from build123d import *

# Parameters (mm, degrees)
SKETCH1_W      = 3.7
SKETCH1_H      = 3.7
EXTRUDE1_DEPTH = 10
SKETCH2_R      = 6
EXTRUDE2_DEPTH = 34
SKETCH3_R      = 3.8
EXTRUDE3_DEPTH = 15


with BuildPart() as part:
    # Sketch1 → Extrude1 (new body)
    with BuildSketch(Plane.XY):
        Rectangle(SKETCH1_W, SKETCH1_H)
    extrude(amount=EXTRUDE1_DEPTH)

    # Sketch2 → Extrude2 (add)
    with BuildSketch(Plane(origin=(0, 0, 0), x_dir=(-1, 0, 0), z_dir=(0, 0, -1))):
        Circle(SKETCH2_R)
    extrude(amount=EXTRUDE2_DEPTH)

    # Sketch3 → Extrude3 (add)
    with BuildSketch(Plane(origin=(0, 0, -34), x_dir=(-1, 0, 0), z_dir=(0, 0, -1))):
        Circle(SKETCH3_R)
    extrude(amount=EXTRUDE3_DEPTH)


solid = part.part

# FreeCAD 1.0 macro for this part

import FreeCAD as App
import Part
import Sketcher
Q = App.Units.Quantity

doc = App.newDocument("Part")
body = doc.addObject("PartDesign::Body", "Body")

# Sketch on XY plane
sketch1 = body.newObject("Sketcher::SketchObject", "Sketch")
sketch1.AttachmentSupport = (doc.getObject("XY_Plane"), [""])
sketch1.MapMode = "FlatFace"
sketch1.addGeometry(Part.LineSegment(App.Vector(-1.9, 1.9, 0), App.Vector(-1.9, -1.9, 0)), False)
sketch1.addGeometry(Part.LineSegment(App.Vector(-1.9, -1.9, 0), App.Vector(1.9, -1.9, 0)), False)
sketch1.addGeometry(Part.LineSegment(App.Vector(1.9, -1.9, 0), App.Vector(1.9, 1.9, 0)), False)
sketch1.addGeometry(Part.LineSegment(App.Vector(1.9, 1.9, 0), App.Vector(-1.9, 1.9, 0)), False)
sketch1.addConstraint(Sketcher.Constraint("Coincident", 0, 2, 1, 1))
sketch1.addConstraint(Sketcher.Constraint("Coincident", 1, 2, 2, 1))
sketch1.addConstraint(Sketcher.Constraint("Coincident", 2, 2, 3, 1))
sketch1.addConstraint(Sketcher.Constraint("Coincident", 3, 2, 0, 1))
sketch1.addConstraint(Sketcher.Constraint("Vertical", 0))
sketch1.addConstraint(Sketcher.Constraint("Horizontal", 1))
sketch1.addConstraint(Sketcher.Constraint("Vertical", 2))
sketch1.addConstraint(Sketcher.Constraint("Horizontal", 3))
sketch1.addConstraint(Sketcher.Constraint("Symmetric", 0, 2, 2, 2, -1, 1))
sketch1.addConstraint(Sketcher.Constraint("Equal", 3, 0))
sketch1.addConstraint(Sketcher.Constraint("DistanceX", 1, 1, 1, 2, Q("3.7 mm")))
pad1 = body.newObject("PartDesign::Pad", "Pad")
pad1.Profile = sketch1
pad1.Length = 10

# Sketch on XY plane
sketch2 = body.newObject("Sketcher::SketchObject", "Sketch001")
sketch2.AttachmentSupport = (doc.getObject("XY_Plane"), [""])
sketch2.MapMode = "FlatFace"
sketch2.addGeometry(Part.Circle(App.Vector(0, 0, 0), App.Vector(0, 0, 1), 6), False)
sketch2.addConstraint(Sketcher.Constraint("Coincident", 0, 3, -1, 1))
sketch2.addConstraint(Sketcher.Constraint("Diameter", 0, Q("12 mm")))
pad2 = body.newObject("PartDesign::Pad", "Pad001")
pad2.Profile = sketch2
pad2.Length = 34
pad2.Reversed = True

# Sketch on XY plane
sketch3 = body.newObject("Sketcher::SketchObject", "Sketch002")
sketch3.AttachmentSupport = (doc.getObject("XY_Plane"), [""])
sketch3.MapMode = "FlatFace"
sketch3.AttachmentOffset = App.Placement(App.Vector(0, 0, -34), App.Rotation())
sketch3.addGeometry(Part.Circle(App.Vector(0, 0, 0), App.Vector(0, 0, 1), 3.8), False)
sketch3.addConstraint(Sketcher.Constraint("Coincident", 0, 3, -1, 1))
sketch3.addConstraint(Sketcher.Constraint("Diameter", 0, Q("7.6 mm")))
pad3 = body.newObject("PartDesign::Pad", "Pad002")
pad3.Profile = sketch3
pad3.Length = 15
pad3.Reversed = True

doc.recompute()
